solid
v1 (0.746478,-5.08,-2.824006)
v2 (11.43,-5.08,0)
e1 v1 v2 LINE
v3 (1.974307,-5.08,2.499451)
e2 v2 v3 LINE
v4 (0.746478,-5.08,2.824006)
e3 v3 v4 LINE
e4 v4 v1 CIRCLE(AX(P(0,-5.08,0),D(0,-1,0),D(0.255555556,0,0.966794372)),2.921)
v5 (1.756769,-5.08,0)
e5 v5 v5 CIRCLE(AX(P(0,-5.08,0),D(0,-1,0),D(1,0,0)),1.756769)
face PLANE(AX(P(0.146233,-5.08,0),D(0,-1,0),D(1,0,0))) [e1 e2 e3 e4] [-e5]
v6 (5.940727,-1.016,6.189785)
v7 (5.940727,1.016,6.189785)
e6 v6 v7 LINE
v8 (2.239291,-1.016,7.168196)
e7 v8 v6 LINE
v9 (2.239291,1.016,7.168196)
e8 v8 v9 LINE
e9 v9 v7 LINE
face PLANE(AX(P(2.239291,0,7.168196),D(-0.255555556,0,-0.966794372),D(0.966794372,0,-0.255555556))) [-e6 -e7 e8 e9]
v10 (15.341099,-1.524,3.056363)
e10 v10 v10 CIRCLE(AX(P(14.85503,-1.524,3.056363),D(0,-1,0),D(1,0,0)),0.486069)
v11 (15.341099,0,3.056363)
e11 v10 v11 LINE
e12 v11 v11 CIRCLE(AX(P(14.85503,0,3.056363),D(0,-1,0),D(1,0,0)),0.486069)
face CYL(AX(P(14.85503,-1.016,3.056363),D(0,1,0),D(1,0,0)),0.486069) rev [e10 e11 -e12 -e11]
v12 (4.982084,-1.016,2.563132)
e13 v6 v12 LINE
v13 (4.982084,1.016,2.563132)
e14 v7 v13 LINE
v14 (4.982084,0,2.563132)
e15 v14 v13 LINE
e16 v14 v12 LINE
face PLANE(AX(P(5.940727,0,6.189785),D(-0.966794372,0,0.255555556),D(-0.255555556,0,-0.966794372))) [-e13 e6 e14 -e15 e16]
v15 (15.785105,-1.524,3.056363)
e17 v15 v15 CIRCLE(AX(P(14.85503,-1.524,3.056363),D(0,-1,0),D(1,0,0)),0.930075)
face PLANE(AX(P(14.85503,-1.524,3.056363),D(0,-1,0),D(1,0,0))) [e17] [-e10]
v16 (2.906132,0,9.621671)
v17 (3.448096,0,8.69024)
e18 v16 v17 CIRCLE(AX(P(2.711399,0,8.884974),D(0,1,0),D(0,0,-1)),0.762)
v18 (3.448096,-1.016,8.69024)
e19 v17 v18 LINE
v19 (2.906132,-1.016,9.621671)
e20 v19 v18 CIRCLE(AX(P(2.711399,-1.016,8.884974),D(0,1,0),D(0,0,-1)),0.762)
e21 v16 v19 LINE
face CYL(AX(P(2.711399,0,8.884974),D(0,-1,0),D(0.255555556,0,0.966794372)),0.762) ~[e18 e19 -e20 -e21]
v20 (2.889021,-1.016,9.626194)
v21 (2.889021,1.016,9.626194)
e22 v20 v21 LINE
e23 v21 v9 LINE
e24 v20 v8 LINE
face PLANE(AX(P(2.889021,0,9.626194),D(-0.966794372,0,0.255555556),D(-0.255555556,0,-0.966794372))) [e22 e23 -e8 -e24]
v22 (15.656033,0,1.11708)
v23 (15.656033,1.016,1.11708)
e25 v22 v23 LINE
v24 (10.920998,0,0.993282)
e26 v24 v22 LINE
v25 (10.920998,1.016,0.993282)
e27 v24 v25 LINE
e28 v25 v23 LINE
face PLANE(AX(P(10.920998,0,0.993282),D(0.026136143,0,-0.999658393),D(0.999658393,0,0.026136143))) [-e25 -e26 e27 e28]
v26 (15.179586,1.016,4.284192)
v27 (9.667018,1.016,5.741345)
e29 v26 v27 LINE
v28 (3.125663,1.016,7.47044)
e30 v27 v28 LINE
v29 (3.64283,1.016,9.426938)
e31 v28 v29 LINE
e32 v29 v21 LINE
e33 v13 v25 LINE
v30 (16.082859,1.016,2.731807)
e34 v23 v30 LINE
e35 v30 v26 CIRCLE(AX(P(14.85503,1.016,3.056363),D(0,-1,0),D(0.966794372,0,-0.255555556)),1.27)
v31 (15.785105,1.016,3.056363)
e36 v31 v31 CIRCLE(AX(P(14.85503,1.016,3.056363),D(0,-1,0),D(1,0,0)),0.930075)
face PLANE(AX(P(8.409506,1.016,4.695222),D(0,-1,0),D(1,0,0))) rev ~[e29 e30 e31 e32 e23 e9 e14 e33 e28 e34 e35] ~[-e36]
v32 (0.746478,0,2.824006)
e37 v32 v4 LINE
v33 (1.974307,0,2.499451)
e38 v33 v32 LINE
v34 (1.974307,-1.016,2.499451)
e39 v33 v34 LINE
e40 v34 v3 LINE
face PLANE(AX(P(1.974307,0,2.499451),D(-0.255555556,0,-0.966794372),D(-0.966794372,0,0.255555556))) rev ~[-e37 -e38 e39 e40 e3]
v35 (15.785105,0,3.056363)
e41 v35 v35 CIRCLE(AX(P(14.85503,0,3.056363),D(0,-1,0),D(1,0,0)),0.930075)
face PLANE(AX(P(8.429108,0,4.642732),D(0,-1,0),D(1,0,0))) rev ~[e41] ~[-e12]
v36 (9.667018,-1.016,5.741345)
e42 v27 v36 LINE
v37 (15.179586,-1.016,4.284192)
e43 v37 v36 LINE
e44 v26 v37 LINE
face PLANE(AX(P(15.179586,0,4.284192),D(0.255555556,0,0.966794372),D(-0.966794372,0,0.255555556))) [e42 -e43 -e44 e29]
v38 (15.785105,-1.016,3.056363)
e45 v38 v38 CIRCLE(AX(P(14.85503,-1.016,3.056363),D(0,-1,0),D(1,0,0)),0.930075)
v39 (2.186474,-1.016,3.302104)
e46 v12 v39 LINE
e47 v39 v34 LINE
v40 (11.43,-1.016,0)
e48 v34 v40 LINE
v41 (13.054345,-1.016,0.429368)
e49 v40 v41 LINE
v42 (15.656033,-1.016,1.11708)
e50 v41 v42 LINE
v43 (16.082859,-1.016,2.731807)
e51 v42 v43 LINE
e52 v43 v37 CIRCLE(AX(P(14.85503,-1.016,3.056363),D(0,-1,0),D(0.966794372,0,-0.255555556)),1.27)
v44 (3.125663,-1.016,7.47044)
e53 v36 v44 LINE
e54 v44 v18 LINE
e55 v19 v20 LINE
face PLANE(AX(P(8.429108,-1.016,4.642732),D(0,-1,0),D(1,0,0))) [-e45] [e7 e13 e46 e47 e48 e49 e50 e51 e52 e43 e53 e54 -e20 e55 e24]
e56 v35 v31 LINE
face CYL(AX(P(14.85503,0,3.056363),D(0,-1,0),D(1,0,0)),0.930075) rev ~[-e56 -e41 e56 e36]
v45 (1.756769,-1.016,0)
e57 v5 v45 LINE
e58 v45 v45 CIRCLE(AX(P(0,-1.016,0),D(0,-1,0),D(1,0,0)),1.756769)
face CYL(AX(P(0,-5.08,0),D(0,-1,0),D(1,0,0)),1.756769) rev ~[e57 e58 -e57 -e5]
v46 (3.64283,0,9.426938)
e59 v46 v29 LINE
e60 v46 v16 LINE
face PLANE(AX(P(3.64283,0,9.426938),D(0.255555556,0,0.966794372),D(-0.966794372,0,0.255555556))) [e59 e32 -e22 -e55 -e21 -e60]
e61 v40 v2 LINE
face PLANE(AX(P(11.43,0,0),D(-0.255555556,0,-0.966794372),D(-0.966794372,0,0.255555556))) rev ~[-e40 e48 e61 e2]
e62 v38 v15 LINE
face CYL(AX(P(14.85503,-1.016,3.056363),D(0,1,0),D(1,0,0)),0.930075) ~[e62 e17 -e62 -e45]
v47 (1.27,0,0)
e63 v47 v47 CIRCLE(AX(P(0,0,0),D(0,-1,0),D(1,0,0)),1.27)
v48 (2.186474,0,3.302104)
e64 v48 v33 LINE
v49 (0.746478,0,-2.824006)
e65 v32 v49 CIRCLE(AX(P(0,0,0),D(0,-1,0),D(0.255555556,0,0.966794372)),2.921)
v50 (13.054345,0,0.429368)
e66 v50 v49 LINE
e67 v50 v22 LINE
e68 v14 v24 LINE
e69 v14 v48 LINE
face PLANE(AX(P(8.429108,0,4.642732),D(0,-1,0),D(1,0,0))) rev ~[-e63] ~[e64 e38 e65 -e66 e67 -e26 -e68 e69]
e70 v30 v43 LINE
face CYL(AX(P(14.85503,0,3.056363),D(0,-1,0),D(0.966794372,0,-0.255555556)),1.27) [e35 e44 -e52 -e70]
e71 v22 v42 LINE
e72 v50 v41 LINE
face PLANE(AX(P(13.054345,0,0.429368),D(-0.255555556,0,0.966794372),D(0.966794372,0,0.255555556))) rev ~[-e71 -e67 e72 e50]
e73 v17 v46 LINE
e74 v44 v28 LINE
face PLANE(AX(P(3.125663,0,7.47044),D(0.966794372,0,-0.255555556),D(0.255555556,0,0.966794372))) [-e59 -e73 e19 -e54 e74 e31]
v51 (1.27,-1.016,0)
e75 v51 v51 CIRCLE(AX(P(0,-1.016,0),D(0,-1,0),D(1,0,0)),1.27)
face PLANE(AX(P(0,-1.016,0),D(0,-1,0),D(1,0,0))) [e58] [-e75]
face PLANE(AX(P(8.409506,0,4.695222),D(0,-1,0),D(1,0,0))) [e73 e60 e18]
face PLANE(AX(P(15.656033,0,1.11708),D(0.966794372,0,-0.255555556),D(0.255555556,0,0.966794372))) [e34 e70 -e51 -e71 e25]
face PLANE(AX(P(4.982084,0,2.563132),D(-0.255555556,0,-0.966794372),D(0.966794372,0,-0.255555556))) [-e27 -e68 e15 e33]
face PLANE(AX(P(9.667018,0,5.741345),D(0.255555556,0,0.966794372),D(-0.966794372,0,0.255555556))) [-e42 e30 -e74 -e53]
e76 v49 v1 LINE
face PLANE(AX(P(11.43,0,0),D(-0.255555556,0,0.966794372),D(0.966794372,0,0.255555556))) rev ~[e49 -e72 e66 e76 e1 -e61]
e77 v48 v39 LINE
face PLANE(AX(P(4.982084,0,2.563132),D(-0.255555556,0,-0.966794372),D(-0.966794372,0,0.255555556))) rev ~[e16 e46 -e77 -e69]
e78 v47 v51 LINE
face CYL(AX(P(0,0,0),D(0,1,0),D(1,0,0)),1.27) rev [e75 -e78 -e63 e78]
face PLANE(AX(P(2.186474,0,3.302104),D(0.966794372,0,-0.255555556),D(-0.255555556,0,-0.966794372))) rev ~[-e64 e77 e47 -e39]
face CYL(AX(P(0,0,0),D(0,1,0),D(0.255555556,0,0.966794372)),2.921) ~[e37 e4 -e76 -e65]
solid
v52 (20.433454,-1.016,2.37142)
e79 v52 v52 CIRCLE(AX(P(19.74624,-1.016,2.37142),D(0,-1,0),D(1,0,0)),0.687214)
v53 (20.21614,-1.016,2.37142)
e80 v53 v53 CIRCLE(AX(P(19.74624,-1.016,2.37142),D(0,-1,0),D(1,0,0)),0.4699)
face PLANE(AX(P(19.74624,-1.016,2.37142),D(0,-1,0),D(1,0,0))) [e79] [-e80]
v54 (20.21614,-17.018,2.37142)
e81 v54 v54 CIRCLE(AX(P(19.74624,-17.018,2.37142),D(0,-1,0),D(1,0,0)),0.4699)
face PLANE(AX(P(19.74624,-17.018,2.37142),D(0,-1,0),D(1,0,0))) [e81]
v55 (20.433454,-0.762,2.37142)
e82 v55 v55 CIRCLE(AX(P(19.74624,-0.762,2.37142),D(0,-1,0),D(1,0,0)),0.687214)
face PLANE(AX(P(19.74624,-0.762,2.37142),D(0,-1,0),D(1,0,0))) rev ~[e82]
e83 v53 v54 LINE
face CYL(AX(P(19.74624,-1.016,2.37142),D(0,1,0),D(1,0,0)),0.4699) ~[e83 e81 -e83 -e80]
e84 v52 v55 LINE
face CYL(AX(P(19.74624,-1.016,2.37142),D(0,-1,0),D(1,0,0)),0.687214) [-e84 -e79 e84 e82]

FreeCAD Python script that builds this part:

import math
import FreeCAD as App
import Part
import Sketcher
Q = App.Units.Quantity


def edges_at(feature, points):
    """Names of the edges that pass closest to the given points."""
    edges = feature.Shape.Edges
    near = lambda p: min(range(len(edges)), key=lambda i: edges[i].distToShape(Part.Vertex(*p))[0])
    return sorted({f"Edge{near(p) + 1}" for p in points})

doc = App.newDocument("Part")
body = doc.addObject("PartDesign::Body", "Body")

# Sketch on XZ plane
sketch1 = doc.addObject("Sketcher::SketchObject", "Sketch")
body.addObject(sketch1)
sketch1.AttachmentSupport = (doc.XZ_Plane, [""])
sketch1.MapMode = "FlatFace"
sketch1.addGeometry(Part.ArcOfCircle(Part.Circle(App.Vector(0, 0, 0), App.Vector(0, 0, 1), 2.921), math.radians(75.193493), math.radians(284.806507)), False)
sketch1.addGeometry(Part.LineSegment(App.Vector(0.746478, -2.824006, 0), App.Vector(11.43, 0, 0)), False)
sketch1.addGeometry(Part.LineSegment(App.Vector(11.43, 0, 0), App.Vector(1.974307, 2.499451, 0)), False)
sketch1.addGeometry(Part.LineSegment(App.Vector(1.974307, 2.499451, 0), App.Vector(0.746478, 2.824006, 0)), False)
sketch1.addGeometry(Part.Circle(App.Vector(0, 0, 0), App.Vector(0, 0, 1), 1.27), False)
sketch1.addConstraint(Sketcher.Constraint("Tangent", 0, 2, 1, 1))
sketch1.addConstraint(Sketcher.Constraint("Coincident", 1, 2, 2, 1))
sketch1.addConstraint(Sketcher.Constraint("Coincident", 2, 2, 3, 1))
sketch1.addConstraint(Sketcher.Constraint("Tangent", 3, 2, 0, 1))
sketch1.addConstraint(Sketcher.Constraint("Coincident", 0, 3, -1, 1))
sketch1.addConstraint(Sketcher.Constraint("Coincident", 4, 3, -1, 1))
sketch1.addConstraint(Sketcher.Constraint("PointOnObject", 1, 2, -1))
sketch1.addConstraint(Sketcher.Constraint("Parallel", 2, 3))
sketch1.addConstraint(Sketcher.Constraint("Diameter", 4, Q("0.1 in")))
sketch1.addConstraint(Sketcher.Constraint("Radius", 0, Q("0.115 in")))
sketch1.addConstraint(Sketcher.Constraint("Distance", 3, Q("0.05 in")))
sketch1.addConstraint(Sketcher.Constraint("DistanceX", -1, 1, 1, 2, Q("0.45 in")))
pad1 = doc.addObject("PartDesign::Pad", "Pad")
body.addObject(pad1)
pad1.Profile = sketch1
pad1.Length = Q("0.2 in")

# Sketch on XZ plane
sketch2 = doc.addObject("Sketcher::SketchObject", "Sketch001")
body.addObject(sketch2)
sketch2.AttachmentSupport = (doc.XZ_Plane, [""])
sketch2.MapMode = "FlatFace"
sketch2.AttachmentOffset = App.Placement(App.Vector(0, 0, 0.2 * 25.4), App.Rotation())
sketch2.addGeometry(Part.Circle(App.Vector(0, 0, 0), App.Vector(0, 0, 1), 1.756769), False)
sketch2.addGeometry(Part.Circle(App.Vector(0, 0, 0), App.Vector(0, 0, 1), 1.27), False)
sketch2.addConstraint(Sketcher.Constraint("Coincident", 0, 3, -1, 1))
sketch2.addConstraint(Sketcher.Constraint("Coincident", 1, 3, -1, 1))
sketch2.addConstraint(Sketcher.Constraint("Diameter", 1, Q("0.1 in")))
sketch2.addConstraint(Sketcher.Constraint("Diameter", 0, 3.513537))
pocket1 = doc.addObject("PartDesign::Pocket", "Pocket")
body.addObject(pocket1)
pocket1.Profile = sketch2
pocket1.Length = Q("0.16 in")

# Sketch on XZ plane
sketch3 = doc.addObject("Sketcher::SketchObject", "Sketch002")
body.addObject(sketch3)
sketch3.AttachmentSupport = (doc.XZ_Plane, [""])
sketch3.MapMode = "FlatFace"
sketch3.addGeometry(Part.LineSegment(App.Vector(2.186474, 3.302104, 0), App.Vector(1.974307, 2.499451, 0)), False)
sketch3.addGeometry(Part.LineSegment(App.Vector(1.974307, 2.499451, 0), App.Vector(11.43, 0, 0)), False)
sketch3.addGeometry(Part.LineSegment(App.Vector(11.43, 0, 0), App.Vector(13.054345, 0.429368, 0)), False)
sketch3.addGeometry(Part.LineSegment(App.Vector(13.054345, 0.429368, 0), App.Vector(4.982084, 2.563132, 0)), False)
sketch3.addGeometry(Part.LineSegment(App.Vector(4.982084, 2.563132, 0), App.Vector(2.186474, 3.302104, 0)), False)
sketch3.addConstraint(Sketcher.Constraint("Coincident", 0, 2, 1, 1))
sketch3.addConstraint(Sketcher.Constraint("Coincident", 1, 2, 2, 1))
sketch3.addConstraint(Sketcher.Constraint("Coincident", 2, 2, 3, 1))
sketch3.addConstraint(Sketcher.Constraint("Coincident", 3, 2, 4, 1))
sketch3.addConstraint(Sketcher.Constraint("Coincident", 4, 2, 0, 1))
sketch3.addConstraint(Sketcher.Constraint("PointOnObject", 1, 2, -1))
sketch3.addConstraint(Sketcher.Constraint("Perpendicular", 0, 1))
sketch3.addConstraint(Sketcher.Constraint("Parallel", 1, 3))
sketch3.addConstraint(Sketcher.Constraint("Parallel", 3, 4))
sketch3.addConstraint(Sketcher.Constraint("DistanceX", -1, 1, 1, 2, Q("0.45 in")))
sketch3.addConstraint(Sketcher.Constraint("DistanceY", 2, 2, 4, 2, Q("0.1130998 in")))
sketch3.addConstraint(Sketcher.Constraint("Distance", 0, 0.830221))
sketch3.addConstraint(Sketcher.Constraint("Distance", 1, 9.78046))
sketch3.addConstraint(Sketcher.Constraint("DistanceY", -1, 1, 0, 2, 2.499451))
sketch3.addConstraint(Sketcher.Constraint("DistanceY", 0, 2, 3, 2, 0.063681))
pad2 = doc.addObject("PartDesign::Pad", "Pad001")
body.addObject(pad2)
pad2.Profile = sketch3
pad2.Length = Q("0.04 in")

# Sketch on XZ plane
sketch4 = doc.addObject("Sketcher::SketchObject", "Sketch003")
body.addObject(sketch4)
sketch4.AttachmentSupport = (doc.XZ_Plane, [""])
sketch4.MapMode = "FlatFace"
sketch4.addGeometry(Part.LineSegment(App.Vector(4.982084, 2.563132, 0), App.Vector(13.054345, 0.429368, 0)), False)
sketch4.addGeometry(Part.LineSegment(App.Vector(13.054345, 0.429368, 0), App.Vector(15.656033, 1.11708, 0)), False)
sketch4.addGeometry(Part.LineSegment(App.Vector(15.656033, 1.11708, 0), App.Vector(16.082859, 2.731807, 0)), False)
sketch4.addGeometry(Part.ArcOfCircle(Part.Circle(App.Vector(14.85503, 3.056363, 0), App.Vector(0, 0, 1), 1.27), math.radians(-14.806507), math.radians(75.193493)), False)
sketch4.addGeometry(Part.LineSegment(App.Vector(15.179586, 4.284192, 0), App.Vector(9.667018, 5.741345, 0)), False)
sketch4.addGeometry(Part.LineSegment(App.Vector(9.667018, 5.741345, 0), App.Vector(3.125663, 7.47044, 0)), False)
sketch4.addGeometry(Part.LineSegment(App.Vector(3.125663, 7.47044, 0), App.Vector(3.64283, 9.426938, 0)), False)
sketch4.addGeometry(Part.LineSegment(App.Vector(3.64283, 9.426938, 0), App.Vector(2.889021, 9.626194, 0)), False)
sketch4.addGeometry(Part.LineSegment(App.Vector(2.889021, 9.626194, 0), App.Vector(2.239291, 7.168196, 0)), False)
sketch4.addGeometry(Part.LineSegment(App.Vector(2.239291, 7.168196, 0), App.Vector(5.940727, 6.189785, 0)), False)
sketch4.addGeometry(Part.LineSegment(App.Vector(5.940727, 6.189785, 0), App.Vector(4.982084, 2.563132, 0)), False)
sketch4.addGeometry(Part.Circle(App.Vector(14.85503, 3.056363, 0), App.Vector(0, 0, 1), 0.486069), False)
sketch4.addConstraint(Sketcher.Constraint("Coincident", 0, 2, 1, 1))
sketch4.addConstraint(Sketcher.Constraint("Coincident", 1, 2, 2, 1))
sketch4.addConstraint(Sketcher.Constraint("Coincident", 2, 2, 3, 1))
sketch4.addConstraint(Sketcher.Constraint("Coincident", 3, 2, 4, 1))
sketch4.addConstraint(Sketcher.Constraint("Coincident", 4, 2, 5, 1))
sketch4.addConstraint(Sketcher.Constraint("Coincident", 5, 2, 6, 1))
sketch4.addConstraint(Sketcher.Constraint("Coincident", 6, 2, 7, 1))
sketch4.addConstraint(Sketcher.Constraint("Coincident", 7, 2, 8, 1))
sketch4.addConstraint(Sketcher.Constraint("Coincident", 8, 2, 9, 1))
sketch4.addConstraint(Sketcher.Constraint("Coincident", 9, 2, 10, 1))
sketch4.addConstraint(Sketcher.Constraint("Coincident", 10, 2, 0, 1))
sketch4.addConstraint(Sketcher.Constraint("Coincident", 11, 3, 3, 3))
sketch4.addConstraint(Sketcher.Constraint("Radius", 3, Q("0.05 in")))
sketch4.addConstraint(Sketcher.Constraint("Diameter", 11, 0.972137))
sketch4.addConstraint(Sketcher.Constraint("Distance", 7, 0.779699))
sketch4.addConstraint(Sketcher.Constraint("DistanceX", 6, 2, 3, 3, 11.2122))
sketch4.addConstraint(Sketcher.Constraint("Distance", 8, 2.54242))
sketch4.addConstraint(Sketcher.Constraint("DistanceX", -1, 1, 3, 3, 14.85503))
sketch4.addConstraint(Sketcher.Constraint("DistanceY", -1, 1, 1, 2, 1.11708))
sketch4.addConstraint(Sketcher.Constraint("DistanceX", -1, 1, 2, 2, 16.082859))
sketch4.addConstraint(Sketcher.Constraint("DistanceY", -1, 1, 3, 2, 4.284192))
sketch4.addConstraint(Sketcher.Constraint("DistanceY", -1, 1, 5, 2, 7.47044))
sketch4.addConstraint(Sketcher.Constraint("DistanceX", -1, 1, 7, 2, 2.889021))
sketch4.addConstraint(Sketcher.Constraint("DistanceX", -1, 1, 8, 2, 2.239291))
sketch4.addConstraint(Sketcher.Constraint("DistanceY", 0, 2, 1, 2, 0.687712))
sketch4.addConstraint(Sketcher.Constraint("DistanceY", 0, 2, 2, 2, 2.302439))
sketch4.addConstraint(Sketcher.Constraint("DistanceX", 0, 2, 3, 2, 2.12524))
sketch4.addConstraint(Sketcher.Constraint("DistanceX", 4, 2, 3, 2, 5.512568))
sketch4.addConstraint(Sketcher.Constraint("DistanceY", 3, 3, 4, 2, 2.684982))
sketch4.addConstraint(Sketcher.Constraint("DistanceY", 4, 2, 7, 2, 3.884849))
sketch4.addConstraint(Sketcher.Constraint("DistanceX", 8, 2, 5, 2, 0.886372))
sketch4.addConstraint(Sketcher.Constraint("DistanceX", 9, 2, 4, 2, 3.72629))
sketch4.addConstraint(Sketcher.Constraint("DistanceY", 4, 2, 9, 2, 0.448441))
sketch4.addConstraint(Sketcher.Constraint("DistanceX", 5, 2, 10, 2, 1.856421))
sketch4.addConstraint(Sketcher.Constraint("Distance", 0, 8.349513))
sketch4.addConstraint(Sketcher.Constraint("Distance", 1, 2.691046))
pad3 = doc.addObject("PartDesign::Pad", "Pad002")
body.addObject(pad3)
pad3.Profile = sketch4
pad3.Length = Q("0.04 in")
doc.recompute()

fillet = doc.addObject("PartDesign::Fillet", "Fillet")
body.addObject(fillet)
fillet.Base = (pad3, edges_at(pad3, [(3.643, -0.508, 9.427)]))
fillet.Radius = Q("0.03 in")

# Sketch on XZ plane
sketch5 = doc.addObject("Sketcher::SketchObject", "Sketch004")
body.addObject(sketch5)
sketch5.AttachmentSupport = (doc.XZ_Plane, [""])
sketch5.MapMode = "FlatFace"
sketch5.AttachmentOffset = App.Placement(App.Vector(0, 0, 0.04 * 25.4), App.Rotation())
sketch5.addGeometry(Part.Circle(App.Vector(14.85503, 3.056363, 0), App.Vector(0, 0, 1), 0.930075), False)
sketch5.addGeometry(Part.Circle(App.Vector(14.85503, 3.056363, 0), App.Vector(0, 0, 1), 0.486069), False)
sketch5.addConstraint(Sketcher.Constraint("Coincident", 1, 3, 0, 3))
sketch5.addConstraint(Sketcher.Constraint("Diameter", 0, 1.860149))
sketch5.addConstraint(Sketcher.Constraint("Diameter", 1, 0.972137))
sketch5.addConstraint(Sketcher.Constraint("DistanceX", -1, 1, 0, 3, 14.85503))
sketch5.addConstraint(Sketcher.Constraint("DistanceY", -1, 1, 0, 3, 3.056363))
pad4 = doc.addObject("PartDesign::Pad", "Pad003")
body.addObject(pad4)
pad4.Profile = sketch5
pad4.Length = Q("0.02 in")

# Sketch on XZ plane
sketch6 = doc.addObject("Sketcher::SketchObject", "Sketch005")
body.addObject(sketch6)
sketch6.AttachmentSupport = (doc.XZ_Plane, [""])
sketch6.MapMode = "FlatFace"
sketch6.addGeometry(Part.LineSegment(App.Vector(4.982084, 2.563132, 0), App.Vector(10.920998, 0.993282, 0)), False)
sketch6.addGeometry(Part.LineSegment(App.Vector(10.920998, 0.993282, 0), App.Vector(15.656033, 1.11708, 0)), False)
sketch6.addGeometry(Part.LineSegment(App.Vector(15.656033, 1.11708, 0), App.Vector(16.082859, 2.731807, 0)), False)
sketch6.addGeometry(Part.ArcOfCircle(Part.Circle(App.Vector(14.85503, 3.056363, 0), App.Vector(0, 0, 1), 1.27), math.radians(-14.806507), math.radians(75.193493)), False)
sketch6.addGeometry(Part.LineSegment(App.Vector(15.179586, 4.284192, 0), App.Vector(9.667018, 5.741345, 0)), False)
sketch6.addGeometry(Part.LineSegment(App.Vector(9.667018, 5.741345, 0), App.Vector(3.125663, 7.47044, 0)), False)
sketch6.addGeometry(Part.LineSegment(App.Vector(3.125663, 7.47044, 0), App.Vector(3.64283, 9.426938, 0)), False)
sketch6.addGeometry(Part.LineSegment(App.Vector(3.64283, 9.426938, 0), App.Vector(2.889021, 9.626194, 0)), False)
sketch6.addGeometry(Part.LineSegment(App.Vector(2.889021, 9.626194, 0), App.Vector(2.239291, 7.168196, 0)), False)
sketch6.addGeometry(Part.LineSegment(App.Vector(2.239291, 7.168196, 0), App.Vector(5.940727, 6.189785, 0)), False)
sketch6.addGeometry(Part.LineSegment(App.Vector(5.940727, 6.189785, 0), App.Vector(4.982084, 2.563132, 0)), False)
sketch6.addGeometry(Part.Circle(App.Vector(14.85503, 3.056363, 0), App.Vector(0, 0, 1), 0.930075), False)
sketch6.addConstraint(Sketcher.Constraint("Coincident", 0, 2, 1, 1))
sketch6.addConstraint(Sketcher.Constraint("Coincident", 1, 2, 2, 1))
sketch6.addConstraint(Sketcher.Constraint("Coincident", 2, 2, 3, 1))
sketch6.addConstraint(Sketcher.Constraint("Coincident", 3, 2, 4, 1))
sketch6.addConstraint(Sketcher.Constraint("Coincident", 4, 2, 5, 1))
sketch6.addConstraint(Sketcher.Constraint("Coincident", 5, 2, 6, 1))
sketch6.addConstraint(Sketcher.Constraint("Coincident", 6, 2, 7, 1))
sketch6.addConstraint(Sketcher.Constraint("Coincident", 7, 2, 8, 1))
sketch6.addConstraint(Sketcher.Constraint("Coincident", 8, 2, 9, 1))
sketch6.addConstraint(Sketcher.Constraint("Coincident", 9, 2, 10, 1))
sketch6.addConstraint(Sketcher.Constraint("Coincident", 10, 2, 0, 1))
sketch6.addConstraint(Sketcher.Constraint("Coincident", 11, 3, 3, 3))
sketch6.addConstraint(Sketcher.Constraint("Radius", 3, Q("0.05 in")))
sketch6.addConstraint(Sketcher.Constraint("Diameter", 11, 1.860149))
sketch6.addConstraint(Sketcher.Constraint("Distance", 7, 0.779699))
sketch6.addConstraint(Sketcher.Constraint("DistanceX", 6, 2, 3, 3, 11.2122))
sketch6.addConstraint(Sketcher.Constraint("Distance", 8, 2.54242))
sketch6.addConstraint(Sketcher.Constraint("DistanceX", -1, 1, 3, 3, 14.85503))
sketch6.addConstraint(Sketcher.Constraint("DistanceY", -1, 1, 0, 2, 0.993282))
sketch6.addConstraint(Sketcher.Constraint("DistanceY", -1, 1, 1, 2, 1.11708))
sketch6.addConstraint(Sketcher.Constraint("DistanceX", -1, 1, 2, 2, 16.082859))
sketch6.addConstraint(Sketcher.Constraint("DistanceY", -1, 1, 3, 2, 4.284192))
sketch6.addConstraint(Sketcher.Constraint("DistanceY", -1, 1, 5, 2, 7.47044))
sketch6.addConstraint(Sketcher.Constraint("DistanceX", -1, 1, 7, 2, 2.889021))
sketch6.addConstraint(Sketcher.Constraint("DistanceX", -1, 1, 8, 2, 2.239291))
sketch6.addConstraint(Sketcher.Constraint("DistanceY", 0, 2, 3, 3, 2.063081))
sketch6.addConstraint(Sketcher.Constraint("DistanceX", 0, 2, 2, 2, 5.161861))
sketch6.addConstraint(Sketcher.Constraint("DistanceX", 4, 2, 0, 2, 1.25398))
sketch6.addConstraint(Sketcher.Constraint("DistanceY", 3, 3, 4, 2, 2.684982))
sketch6.addConstraint(Sketcher.Constraint("DistanceY", 4, 2, 7, 2, 3.884849))
sketch6.addConstraint(Sketcher.Constraint("DistanceX", 8, 2, 5, 2, 0.886372))
sketch6.addConstraint(Sketcher.Constraint("DistanceX", 9, 2, 4, 2, 3.72629))
sketch6.addConstraint(Sketcher.Constraint("DistanceY", 4, 2, 9, 2, 0.448441))
sketch6.addConstraint(Sketcher.Constraint("DistanceX", 5, 2, 10, 2, 1.856421))
sketch6.addConstraint(Sketcher.Constraint("DistanceY", 0, 2, 10, 2, 1.56985))
sketch6.addConstraint(Sketcher.Constraint("Distance", 1, 4.736653))
pad5 = doc.addObject("PartDesign::Pad", "Pad004")
body.addObject(pad5)
pad5.Profile = sketch6
pad5.Length = Q("0.04 in")
pad5.Reversed = True
body2 = doc.addObject("PartDesign::Body", "Body001")

# Sketch on XZ plane
sketch7 = doc.addObject("Sketcher::SketchObject", "Sketch006")
body2.addObject(sketch7)
sketch7.AttachmentSupport = (doc.getObject("XZ_Plane001"), [""])
sketch7.MapMode = "FlatFace"
sketch7.AttachmentOffset = App.Placement(App.Vector(0, 0, 0.04 * 25.4), App.Rotation())
sketch7.addGeometry(Part.Circle(App.Vector(19.74624, 2.37142, 0), App.Vector(0, 0, 1), 0.4699), False)
sketch7.addConstraint(Sketcher.Constraint("Diameter", 0, Q("0.037 in")))
sketch7.addConstraint(Sketcher.Constraint("DistanceX", -1, 1, 0, 3, 19.74624))
sketch7.addConstraint(Sketcher.Constraint("DistanceY", -1, 1, 0, 3, 2.37142))
pad6 = doc.addObject("PartDesign::Pad", "Pad005")
body2.addObject(pad6)
pad6.Profile = sketch7
pad6.Length = Q("0.63 in")

# Sketch on XZ plane
sketch8 = doc.addObject("Sketcher::SketchObject", "Sketch007")
body2.addObject(sketch8)
sketch8.AttachmentSupport = (doc.getObject("XZ_Plane001"), [""])
sketch8.MapMode = "FlatFace"
sketch8.AttachmentOffset = App.Placement(App.Vector(0, 0, 0.04 * 25.4), App.Rotation())
sketch8.addGeometry(Part.Circle(App.Vector(19.74624, 2.37142, 0), App.Vector(0, 0, 1), 0.687214), False)
sketch8.addConstraint(Sketcher.Constraint("Diameter", 0, 1.374428))
sketch8.addConstraint(Sketcher.Constraint("DistanceX", -1, 1, 0, 3, 19.74624))
sketch8.addConstraint(Sketcher.Constraint("DistanceY", -1, 1, 0, 3, 2.37142))
pad7 = doc.addObject("PartDesign::Pad", "Pad006")
body2.addObject(pad7)
pad7.Profile = sketch8
pad7.Length = Q("0.01 in")
pad7.Reversed = True

doc.recompute()
